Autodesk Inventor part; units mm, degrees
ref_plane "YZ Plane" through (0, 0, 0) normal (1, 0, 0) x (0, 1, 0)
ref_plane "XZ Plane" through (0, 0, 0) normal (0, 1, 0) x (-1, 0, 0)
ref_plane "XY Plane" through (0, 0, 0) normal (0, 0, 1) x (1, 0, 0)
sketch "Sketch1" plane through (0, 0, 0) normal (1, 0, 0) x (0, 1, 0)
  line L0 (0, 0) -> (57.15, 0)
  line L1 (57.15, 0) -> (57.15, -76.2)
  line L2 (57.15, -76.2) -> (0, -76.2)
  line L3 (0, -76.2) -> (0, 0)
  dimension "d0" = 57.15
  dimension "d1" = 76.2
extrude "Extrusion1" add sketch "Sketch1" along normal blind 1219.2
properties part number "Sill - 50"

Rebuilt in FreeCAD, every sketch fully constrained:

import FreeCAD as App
import Part
import Sketcher
Q = App.Units.Quantity

doc = App.newDocument("Part")
body = doc.addObject("PartDesign::Body", "Body")

# Sketch on YZ plane
sketch1 = body.newObject("Sketcher::SketchObject", "Sketch")
sketch1.AttachmentSupport = (doc.getObject("YZ_Plane"), [""])
sketch1.MapMode = "FlatFace"
sketch1.addGeometry(Part.LineSegment(App.Vector(57, 0, 0), App.Vector(0, 0, 0)), False)
sketch1.addGeometry(Part.LineSegment(App.Vector(0, 0, 0), App.Vector(0, -76, 0)), False)
sketch1.addGeometry(Part.LineSegment(App.Vector(0, -76, 0), App.Vector(57, -76, 0)), False)
sketch1.addGeometry(Part.LineSegment(App.Vector(57, -76, 0), App.Vector(57, 0, 0)), False)
sketch1.addConstraint(Sketcher.Constraint("Coincident", 0, 2, 1, 1))
sketch1.addConstraint(Sketcher.Constraint("Coincident", 1, 2, 2, 1))
sketch1.addConstraint(Sketcher.Constraint("Coincident", 2, 2, 3, 1))
sketch1.addConstraint(Sketcher.Constraint("Coincident", 3, 2, 0, 1))
sketch1.addConstraint(Sketcher.Constraint("Horizontal", 0))
sketch1.addConstraint(Sketcher.Constraint("Vertical", 1))
sketch1.addConstraint(Sketcher.Constraint("Horizontal", 2))
sketch1.addConstraint(Sketcher.Constraint("Vertical", 3))
sketch1.addConstraint(Sketcher.Constraint("Coincident", 0, 2, -1, 1))
sketch1.addConstraint(Sketcher.Constraint("DistanceY", 1, 2, 1, 1, Q("3 in")))
sketch1.addConstraint(Sketcher.Constraint("DistanceX", 0, 2, 0, 1, Q("2.25 in")))
pad1 = body.newObject("PartDesign::Pad", "Pad")
pad1.Profile = sketch1
pad1.Length = Q("48 in")

doc.recompute()
